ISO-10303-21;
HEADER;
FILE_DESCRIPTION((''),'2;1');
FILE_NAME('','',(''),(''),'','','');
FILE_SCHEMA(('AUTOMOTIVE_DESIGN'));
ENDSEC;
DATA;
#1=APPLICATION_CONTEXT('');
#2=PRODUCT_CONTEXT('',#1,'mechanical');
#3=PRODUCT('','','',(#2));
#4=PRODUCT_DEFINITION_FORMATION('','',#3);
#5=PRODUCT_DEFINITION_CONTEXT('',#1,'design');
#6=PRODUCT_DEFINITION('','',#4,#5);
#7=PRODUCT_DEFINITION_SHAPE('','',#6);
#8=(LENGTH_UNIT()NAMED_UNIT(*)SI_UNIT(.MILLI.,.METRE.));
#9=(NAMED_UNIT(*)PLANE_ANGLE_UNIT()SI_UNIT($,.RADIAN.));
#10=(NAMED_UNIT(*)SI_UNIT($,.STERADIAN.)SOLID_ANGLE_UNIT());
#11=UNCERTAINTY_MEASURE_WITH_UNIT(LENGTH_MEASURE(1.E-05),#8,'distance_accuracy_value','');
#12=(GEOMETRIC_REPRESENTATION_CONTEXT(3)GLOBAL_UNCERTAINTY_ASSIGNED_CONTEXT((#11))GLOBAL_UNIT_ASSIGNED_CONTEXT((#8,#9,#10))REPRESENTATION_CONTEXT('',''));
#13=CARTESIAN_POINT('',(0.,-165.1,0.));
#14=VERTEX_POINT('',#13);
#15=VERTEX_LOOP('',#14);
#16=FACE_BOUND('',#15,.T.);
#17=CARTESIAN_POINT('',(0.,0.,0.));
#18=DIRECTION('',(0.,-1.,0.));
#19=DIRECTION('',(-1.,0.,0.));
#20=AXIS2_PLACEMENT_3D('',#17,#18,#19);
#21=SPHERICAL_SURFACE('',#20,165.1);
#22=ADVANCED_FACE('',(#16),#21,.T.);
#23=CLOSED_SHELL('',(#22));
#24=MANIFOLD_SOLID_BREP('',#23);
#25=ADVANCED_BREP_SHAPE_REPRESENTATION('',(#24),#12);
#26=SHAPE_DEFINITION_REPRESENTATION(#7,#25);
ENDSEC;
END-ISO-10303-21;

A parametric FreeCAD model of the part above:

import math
import FreeCAD as App
import Part
import Sketcher

V = App.Vector
Q = App.Units.Quantity

doc = App.newDocument("Part")
params = doc.addObject("Spreadsheet::Sheet", "Params")
for row, (alias, value) in enumerate([
    ("sketch1_radius", "6.5 in"),
    ("revolution_angle", "360 deg"),
], start=1):
    params.set(f"A{row}", alias)
    params.set(f"B{row}", "=" + value)
    params.setAlias(f"B{row}", alias)

body = doc.addObject("PartDesign::Body", "Body")

sketch1 = body.newObject("Sketcher::SketchObject", "Sketch")
sketch1.AttachmentSupport = (doc.getObject("XY_Plane"), [""])
sketch1.MapMode = "FlatFace"
sketch1.addGeometry([
    Part.ArcOfCircle(Part.Circle(V(0, 0, 0), V(0, 0, 1), 165), math.radians(-90), math.radians(90)),
    Part.LineSegment(V(0, 165, 0), V(0, -165, 0)),
], False)
sketch1.addConstraint([
    Sketcher.Constraint("Coincident", 0, 1, 1, 2),
    Sketcher.Constraint("Coincident", 1, 1, 0, 2),
    Sketcher.Constraint("Vertical", 1),
    Sketcher.Constraint("Coincident", 0, 3, -1, 1),
    Sketcher.Constraint("PointOnObject", 0, 1, -2),
    Sketcher.Constraint("Radius", 0, Q("6.5 in")),
])
sketch1.setExpression("Constraints[5]", "Params.sketch1_radius")
revolution = body.newObject("PartDesign::Revolution", "Revolution")
revolution.Profile = sketch1
revolution.ReferenceAxis = (sketch1, ["V_Axis"])
revolution.setExpression("Angle", "Params.revolution_angle")

doc.recompute()
